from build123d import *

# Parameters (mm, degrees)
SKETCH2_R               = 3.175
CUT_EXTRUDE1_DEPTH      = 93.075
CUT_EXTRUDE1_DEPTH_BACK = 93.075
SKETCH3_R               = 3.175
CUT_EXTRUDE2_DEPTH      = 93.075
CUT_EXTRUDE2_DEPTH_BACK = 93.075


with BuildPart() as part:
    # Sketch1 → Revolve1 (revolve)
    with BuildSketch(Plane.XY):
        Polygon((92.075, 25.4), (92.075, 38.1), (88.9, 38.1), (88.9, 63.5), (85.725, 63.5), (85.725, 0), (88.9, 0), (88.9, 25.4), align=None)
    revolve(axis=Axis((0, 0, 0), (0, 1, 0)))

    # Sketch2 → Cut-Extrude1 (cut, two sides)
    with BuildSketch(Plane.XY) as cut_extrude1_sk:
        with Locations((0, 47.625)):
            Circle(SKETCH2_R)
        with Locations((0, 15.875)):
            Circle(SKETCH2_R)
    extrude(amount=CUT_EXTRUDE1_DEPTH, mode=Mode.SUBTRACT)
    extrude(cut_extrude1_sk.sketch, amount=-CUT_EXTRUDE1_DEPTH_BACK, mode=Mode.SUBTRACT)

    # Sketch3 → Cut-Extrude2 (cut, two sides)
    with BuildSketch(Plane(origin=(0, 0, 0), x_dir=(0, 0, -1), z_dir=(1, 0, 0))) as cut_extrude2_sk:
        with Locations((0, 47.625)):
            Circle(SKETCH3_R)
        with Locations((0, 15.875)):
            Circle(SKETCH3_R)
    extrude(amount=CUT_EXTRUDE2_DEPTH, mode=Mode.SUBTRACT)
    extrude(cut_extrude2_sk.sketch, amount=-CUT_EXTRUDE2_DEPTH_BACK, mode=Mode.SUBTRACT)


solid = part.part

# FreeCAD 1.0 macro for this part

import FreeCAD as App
import Part
import Sketcher

V = App.Vector
Q = App.Units.Quantity

doc = App.newDocument("Part")
body = doc.addObject("PartDesign::Body", "Body")

sketch1 = body.newObject("Sketcher::SketchObject", "Sketch")
sketch1.AttachmentSupport = (doc.getObject("XY_Plane"), [""])
sketch1.MapMode = "FlatFace"
sketch1.addGeometry([
    Part.LineSegment(V(92.075, 25.4, 0), V(92.075, 38.1, 0)),
    Part.LineSegment(V(92.075, 38.1, 0), V(88.9, 38.1, 0)),
    Part.LineSegment(V(88.9, 38.1, 0), V(88.9, 63.5, 0)),
    Part.LineSegment(V(88.9, 63.5, 0), V(85.725, 63.5, 0)),
    Part.LineSegment(V(85.725, 63.5, 0), V(85.725, 0, 0)),
    Part.LineSegment(V(85.725, 0, 0), V(88.9, 0, 0)),
    Part.LineSegment(V(88.9, 0, 0), V(88.9, 25.4, 0)),
    Part.LineSegment(V(88.9, 25.4, 0), V(92.075, 25.4, 0)),
], False)
sketch1.addConstraint([
    Sketcher.Constraint("Coincident", 0, 2, 1, 1),
    Sketcher.Constraint("Coincident", 1, 2, 2, 1),
    Sketcher.Constraint("Coincident", 2, 2, 3, 1),
    Sketcher.Constraint("Coincident", 3, 2, 4, 1),
    Sketcher.Constraint("Coincident", 4, 2, 5, 1),
    Sketcher.Constraint("Coincident", 5, 2, 6, 1),
    Sketcher.Constraint("Coincident", 6, 2, 7, 1),
    Sketcher.Constraint("Coincident", 7, 2, 0, 1),
    Sketcher.Constraint("Vertical", 0),
    Sketcher.Constraint("Horizontal", 1),
    Sketcher.Constraint("Vertical", 2),
    Sketcher.Constraint("Horizontal", 3),
    Sketcher.Constraint("Vertical", 4),
    Sketcher.Constraint("Horizontal", 5),
    Sketcher.Constraint("Vertical", 6),
    Sketcher.Constraint("Horizontal", 7),
    Sketcher.Constraint("PointOnObject", 4, 2, -1),
    Sketcher.Constraint("Vertical", 2, 2, 5, 2),
    Sketcher.Constraint("Equal", 1, 3),
    Sketcher.Constraint("Equal", 2, 6),
    Sketcher.Constraint("DistanceY", 2, 1, 2, 2, Q("1 in")),
    Sketcher.Constraint("DistanceY", 0, 1, 0, 2, Q("0.5 in")),
    Sketcher.Constraint("DistanceX", -1, 1, 1, 2, Q("3.5 in")),
    Sketcher.Constraint("DistanceX", 1, 2, 1, 1, Q("0.125 in")),
])
revolution = body.newObject("PartDesign::Revolution", "Revolution")
revolution.Profile = sketch1
revolution.ReferenceAxis = (sketch1, ["V_Axis"])
revolution.Angle = 360

sketch2 = body.newObject("Sketcher::SketchObject", "Sketch001")
sketch2.AttachmentSupport = (doc.getObject("XY_Plane"), [""])
sketch2.MapMode = "FlatFace"
sketch2.addGeometry([
    Part.Circle(V(0, 47.625, 0), V(0, 0, 1), 3.175),
    Part.Circle(V(0, 15.875, 0), V(0, 0, 1), 3.175),
], False)
sketch2.addConstraint([
    Sketcher.Constraint("Equal", 0, 1),
    Sketcher.Constraint("PointOnObject", 0, 3, -2),
    Sketcher.Constraint("PointOnObject", 1, 3, -2),
    Sketcher.Constraint("Diameter", 0, Q("0.25 in")),
    Sketcher.Constraint("DistanceY", 1, 3, 0, 3, Q("1.25 in")),
    Sketcher.Constraint("DistanceY", -1, 1, 0, 3, Q("1.875 in")),
])
pocket1 = body.newObject("PartDesign::Pocket", "Pocket")
pocket1.Profile = sketch2
pocket1.Type = "ThroughAll"
pocket1.Midplane = True

sketch3 = body.newObject("Sketcher::SketchObject", "Sketch002")
sketch3.AttachmentSupport = (doc.getObject("YZ_Plane"), [""])
sketch3.MapMode = "FlatFace"
sketch3.addGeometry([
    Part.Circle(V(47.625, 0, 0), V(0, 0, 1), 3.175),
    Part.Circle(V(15.875, 0, 0), V(0, 0, 1), 3.175),
], False)
sketch3.addConstraint([
    Sketcher.Constraint("Equal", 0, 1),
    Sketcher.Constraint("PointOnObject", 0, 3, -1),
    Sketcher.Constraint("PointOnObject", 1, 3, -1),
    Sketcher.Constraint("Diameter", 0, Q("0.25 in")),
    Sketcher.Constraint("DistanceX", 1, 3, 0, 3, Q("1.25 in")),
    Sketcher.Constraint("DistanceX", -1, 1, 0, 3, Q("1.875 in")),
])
pocket2 = body.newObject("PartDesign::Pocket", "Pocket001")
pocket2.Profile = sketch3
pocket2.Type = "ThroughAll"
pocket2.Midplane = True

doc.recompute()
